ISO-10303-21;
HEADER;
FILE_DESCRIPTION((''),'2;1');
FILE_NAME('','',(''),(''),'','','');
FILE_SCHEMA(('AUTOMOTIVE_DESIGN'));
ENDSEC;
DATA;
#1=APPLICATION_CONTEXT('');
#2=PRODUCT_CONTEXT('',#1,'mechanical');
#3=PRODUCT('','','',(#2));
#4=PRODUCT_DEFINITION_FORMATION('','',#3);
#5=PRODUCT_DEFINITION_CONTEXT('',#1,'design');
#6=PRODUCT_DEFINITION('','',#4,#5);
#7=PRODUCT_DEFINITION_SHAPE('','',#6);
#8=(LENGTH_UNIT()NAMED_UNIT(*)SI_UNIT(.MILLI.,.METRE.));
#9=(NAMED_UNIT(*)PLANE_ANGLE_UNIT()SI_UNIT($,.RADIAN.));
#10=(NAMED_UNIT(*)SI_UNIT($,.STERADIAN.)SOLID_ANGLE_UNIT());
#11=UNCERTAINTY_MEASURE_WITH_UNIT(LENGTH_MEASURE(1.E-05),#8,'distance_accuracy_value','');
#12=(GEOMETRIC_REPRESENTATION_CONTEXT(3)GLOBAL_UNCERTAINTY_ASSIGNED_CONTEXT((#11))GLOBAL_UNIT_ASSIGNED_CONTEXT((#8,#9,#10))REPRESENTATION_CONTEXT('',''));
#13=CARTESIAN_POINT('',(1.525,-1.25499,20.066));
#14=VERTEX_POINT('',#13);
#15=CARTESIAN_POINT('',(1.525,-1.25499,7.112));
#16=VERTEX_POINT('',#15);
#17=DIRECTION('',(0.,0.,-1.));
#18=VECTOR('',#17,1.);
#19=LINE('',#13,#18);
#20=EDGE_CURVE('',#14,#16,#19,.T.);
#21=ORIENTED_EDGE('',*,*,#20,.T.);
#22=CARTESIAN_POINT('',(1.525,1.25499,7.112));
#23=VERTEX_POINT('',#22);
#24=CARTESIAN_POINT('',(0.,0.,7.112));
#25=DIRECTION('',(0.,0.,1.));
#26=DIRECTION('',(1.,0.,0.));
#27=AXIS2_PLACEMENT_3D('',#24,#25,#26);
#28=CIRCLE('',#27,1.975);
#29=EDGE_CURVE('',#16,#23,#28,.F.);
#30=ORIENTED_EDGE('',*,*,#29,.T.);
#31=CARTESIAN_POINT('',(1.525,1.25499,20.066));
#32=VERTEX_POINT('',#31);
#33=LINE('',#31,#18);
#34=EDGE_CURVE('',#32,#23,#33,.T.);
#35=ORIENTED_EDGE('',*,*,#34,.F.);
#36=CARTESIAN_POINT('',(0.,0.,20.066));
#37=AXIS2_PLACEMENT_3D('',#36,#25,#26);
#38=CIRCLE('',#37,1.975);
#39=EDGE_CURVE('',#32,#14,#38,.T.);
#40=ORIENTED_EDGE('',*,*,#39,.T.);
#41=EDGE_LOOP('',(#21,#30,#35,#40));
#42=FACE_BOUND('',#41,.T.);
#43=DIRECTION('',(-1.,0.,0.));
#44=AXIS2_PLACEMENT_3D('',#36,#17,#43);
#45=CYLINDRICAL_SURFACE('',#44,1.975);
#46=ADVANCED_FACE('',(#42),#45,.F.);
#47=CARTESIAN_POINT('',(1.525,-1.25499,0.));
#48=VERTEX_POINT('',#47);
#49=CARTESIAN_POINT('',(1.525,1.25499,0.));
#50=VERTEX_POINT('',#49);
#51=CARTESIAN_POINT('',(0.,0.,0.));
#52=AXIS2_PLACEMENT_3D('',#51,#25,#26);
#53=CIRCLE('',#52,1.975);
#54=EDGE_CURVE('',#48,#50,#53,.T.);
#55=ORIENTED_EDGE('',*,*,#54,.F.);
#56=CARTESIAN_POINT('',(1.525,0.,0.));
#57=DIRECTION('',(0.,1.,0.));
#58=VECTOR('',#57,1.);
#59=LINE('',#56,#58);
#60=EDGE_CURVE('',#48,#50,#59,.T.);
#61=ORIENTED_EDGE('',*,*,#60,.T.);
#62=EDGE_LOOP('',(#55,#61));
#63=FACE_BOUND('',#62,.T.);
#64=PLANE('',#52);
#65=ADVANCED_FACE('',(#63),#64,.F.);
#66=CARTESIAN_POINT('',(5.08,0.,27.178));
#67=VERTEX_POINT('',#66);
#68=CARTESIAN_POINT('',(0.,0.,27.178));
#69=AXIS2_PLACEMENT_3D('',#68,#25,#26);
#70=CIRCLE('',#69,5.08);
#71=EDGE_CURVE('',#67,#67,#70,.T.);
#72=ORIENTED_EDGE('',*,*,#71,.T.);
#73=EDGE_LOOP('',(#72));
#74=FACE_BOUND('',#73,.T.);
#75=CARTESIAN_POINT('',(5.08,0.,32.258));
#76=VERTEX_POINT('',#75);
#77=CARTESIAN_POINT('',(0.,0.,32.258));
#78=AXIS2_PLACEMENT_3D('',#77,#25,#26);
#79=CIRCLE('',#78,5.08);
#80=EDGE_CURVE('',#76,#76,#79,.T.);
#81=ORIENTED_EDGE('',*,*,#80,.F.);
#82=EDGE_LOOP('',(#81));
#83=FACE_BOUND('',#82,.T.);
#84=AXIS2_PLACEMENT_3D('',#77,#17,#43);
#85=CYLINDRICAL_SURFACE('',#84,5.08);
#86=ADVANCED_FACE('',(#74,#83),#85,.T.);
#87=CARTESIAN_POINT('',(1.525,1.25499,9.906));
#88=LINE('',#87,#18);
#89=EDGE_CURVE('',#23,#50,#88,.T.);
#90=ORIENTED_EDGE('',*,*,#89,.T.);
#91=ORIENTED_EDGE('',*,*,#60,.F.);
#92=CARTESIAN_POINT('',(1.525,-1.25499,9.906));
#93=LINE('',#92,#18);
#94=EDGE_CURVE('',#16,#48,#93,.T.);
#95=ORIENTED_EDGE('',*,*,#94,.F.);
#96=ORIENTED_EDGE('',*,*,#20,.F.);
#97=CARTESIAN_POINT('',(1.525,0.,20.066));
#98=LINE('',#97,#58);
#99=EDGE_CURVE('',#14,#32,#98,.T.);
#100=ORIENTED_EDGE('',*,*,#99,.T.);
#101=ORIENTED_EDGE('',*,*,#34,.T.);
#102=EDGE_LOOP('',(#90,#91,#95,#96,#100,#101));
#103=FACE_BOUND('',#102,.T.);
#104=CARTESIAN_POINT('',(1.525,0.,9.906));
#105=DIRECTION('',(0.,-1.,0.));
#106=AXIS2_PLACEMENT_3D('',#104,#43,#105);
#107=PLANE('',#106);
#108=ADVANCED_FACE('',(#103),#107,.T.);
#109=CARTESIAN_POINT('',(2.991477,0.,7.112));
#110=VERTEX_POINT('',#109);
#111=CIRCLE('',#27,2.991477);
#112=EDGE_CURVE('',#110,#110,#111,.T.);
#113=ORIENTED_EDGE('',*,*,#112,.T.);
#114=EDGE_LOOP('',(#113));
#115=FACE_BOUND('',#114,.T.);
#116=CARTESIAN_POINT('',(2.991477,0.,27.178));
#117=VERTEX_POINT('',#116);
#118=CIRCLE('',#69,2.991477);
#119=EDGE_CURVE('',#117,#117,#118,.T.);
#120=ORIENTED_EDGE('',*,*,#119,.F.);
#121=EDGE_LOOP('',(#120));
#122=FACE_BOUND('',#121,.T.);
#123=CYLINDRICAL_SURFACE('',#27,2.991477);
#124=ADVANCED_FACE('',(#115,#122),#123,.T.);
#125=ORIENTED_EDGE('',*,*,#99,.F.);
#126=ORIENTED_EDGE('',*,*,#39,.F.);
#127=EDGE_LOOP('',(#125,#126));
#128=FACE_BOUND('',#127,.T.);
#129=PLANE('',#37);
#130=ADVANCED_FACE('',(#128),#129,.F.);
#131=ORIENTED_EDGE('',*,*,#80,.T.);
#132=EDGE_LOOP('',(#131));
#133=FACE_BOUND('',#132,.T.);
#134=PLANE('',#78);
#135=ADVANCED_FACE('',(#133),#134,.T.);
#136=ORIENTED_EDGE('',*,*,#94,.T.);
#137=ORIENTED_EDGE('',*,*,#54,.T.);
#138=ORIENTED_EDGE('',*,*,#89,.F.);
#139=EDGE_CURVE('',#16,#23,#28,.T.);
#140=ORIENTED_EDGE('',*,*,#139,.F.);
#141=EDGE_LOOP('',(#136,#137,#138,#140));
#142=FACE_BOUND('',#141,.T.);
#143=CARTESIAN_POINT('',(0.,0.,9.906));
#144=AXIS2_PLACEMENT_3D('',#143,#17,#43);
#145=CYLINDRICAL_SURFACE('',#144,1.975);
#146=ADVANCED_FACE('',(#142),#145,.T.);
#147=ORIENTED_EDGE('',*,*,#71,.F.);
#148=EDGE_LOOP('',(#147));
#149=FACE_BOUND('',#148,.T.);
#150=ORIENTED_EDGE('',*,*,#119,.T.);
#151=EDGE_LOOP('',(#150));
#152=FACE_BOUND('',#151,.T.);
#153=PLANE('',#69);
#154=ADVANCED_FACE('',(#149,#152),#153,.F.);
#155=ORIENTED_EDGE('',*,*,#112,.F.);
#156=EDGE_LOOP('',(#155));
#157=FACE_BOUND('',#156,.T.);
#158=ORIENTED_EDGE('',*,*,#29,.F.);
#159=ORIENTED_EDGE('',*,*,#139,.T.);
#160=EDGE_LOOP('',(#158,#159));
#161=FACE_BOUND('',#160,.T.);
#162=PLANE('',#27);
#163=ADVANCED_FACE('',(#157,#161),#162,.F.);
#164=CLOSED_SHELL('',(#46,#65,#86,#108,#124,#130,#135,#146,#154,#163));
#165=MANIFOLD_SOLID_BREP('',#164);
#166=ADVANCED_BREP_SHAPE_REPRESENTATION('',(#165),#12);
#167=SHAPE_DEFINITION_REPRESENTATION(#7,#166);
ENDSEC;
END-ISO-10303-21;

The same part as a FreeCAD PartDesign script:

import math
import FreeCAD as App
import Part
import Sketcher

V = App.Vector
Q = App.Units.Quantity

doc = App.newDocument("Part")
params = doc.addObject("Spreadsheet::Sheet", "Params")
for row, (alias, value) in enumerate([
    ("pad1_length", "0.39 in"),
    ("pad2_length", "0.68 in"),
    ("pad3_length", "0.79 in"),
    ("pocket1_length", "0.79 in"),
    ("sketch5_diameter", "0.4 in"),
    ("pad4_length", "0.2 in"),
], start=1):
    params.set(f"A{row}", alias)
    params.set(f"B{row}", "=" + value)
    params.setAlias(f"B{row}", alias)

body = doc.addObject("PartDesign::Body", "Body")

# Sketch on XY plane
sketch1 = body.newObject("Sketcher::SketchObject", "Sketch")
sketch1.AttachmentSupport = (doc.getObject("XY_Plane"), [""])
sketch1.MapMode = "FlatFace"
sketch1.addGeometry([
    Part.ArcOfCircle(Part.Circle(V(0, 0, 0), V(0, 0, 1), 2), math.radians(-39), math.radians(39)),
    Part.LineSegment(V(1.5, 1.3, 0), V(1.5, -1.3, 0)),
], False)
sketch1.addConstraint([
    Sketcher.Constraint("Coincident", 0, 1, 1, 2),
    Sketcher.Constraint("Coincident", 1, 1, 0, 2),
    Sketcher.Constraint("Vertical", 1),
    Sketcher.Constraint("Coincident", 0, 3, -1, 1),
    Sketcher.Constraint("Radius", 0, Q("1.975 mm")),
    Sketcher.Constraint("DistanceY", 1, 2, 1, 1, Q("2.50998 mm")),
])
pad1 = body.newObject("PartDesign::Pad", "Pad")
pad1.Profile = sketch1
pad1.setExpression("Length", "Params.pad1_length")

# Sketch on XY plane
sketch2 = body.newObject("Sketcher::SketchObject", "Sketch001")
sketch2.AttachmentSupport = (doc.getObject("XY_Plane"), [""])
sketch2.MapMode = "FlatFace"
sketch2.AttachmentOffset = App.Placement(V(0, 0, 0.39 * 25.4), App.Rotation())
sketch2.addGeometry(Part.Circle(V(0, 0, 0), V(0, 0, 1), 2), False)
sketch2.addConstraint([
    Sketcher.Constraint("Coincident", 0, 3, -1, 1),
    Sketcher.Constraint("Diameter", 0, Q("3.95 mm")),
])
pad2 = body.newObject("PartDesign::Pad", "Pad001")
pad2.Profile = sketch2
pad2.setExpression("Length", "Params.pad2_length")

# Sketch on XY plane
sketch3 = body.newObject("Sketcher::SketchObject", "Sketch002")
sketch3.AttachmentSupport = (doc.getObject("XY_Plane"), [""])
sketch3.MapMode = "FlatFace"
sketch3.AttachmentOffset = App.Placement(V(0, 0, 1.07 * 25.4), App.Rotation())
sketch3.addGeometry(Part.Circle(V(0, 0, 0), V(0, 0, 1), 3), False)
sketch3.addConstraint([
    Sketcher.Constraint("Coincident", 0, 3, -1, 1),
    Sketcher.Constraint("Diameter", 0, Q("5.982955 mm")),
])
pad3 = body.newObject("PartDesign::Pad", "Pad002")
pad3.Profile = sketch3
pad3.setExpression("Length", "Params.pad3_length")
pad3.Reversed = True

# Sketch on XY plane
sketch4 = body.newObject("Sketcher::SketchObject", "Sketch003")
sketch4.AttachmentSupport = (doc.getObject("XY_Plane"), [""])
sketch4.MapMode = "FlatFace"
sketch4.addGeometry([
    Part.LineSegment(V(1.5, -1.3, 0), V(1.5, 1.3, 0)),
    Part.ArcOfCircle(Part.Circle(V(0, 0, 0), V(0, 0, 1), 2), math.radians(39), math.radians(321)),
], False)
sketch4.addConstraint([
    Sketcher.Constraint("Coincident", 0, 1, 1, 2),
    Sketcher.Constraint("Coincident", 1, 1, 0, 2),
    Sketcher.Constraint("Vertical", 0),
    Sketcher.Constraint("Coincident", 1, 3, -1, 1),
    Sketcher.Constraint("Radius", 1, Q("1.975 mm")),
    Sketcher.Constraint("DistanceY", 0, 1, 0, 2, Q("2.50998 mm")),
])
pocket1 = body.newObject("PartDesign::Pocket", "Pocket")
pocket1.Profile = sketch4
pocket1.setExpression("Length", "Params.pocket1_length")
pocket1.Reversed = True

# Sketch on XY plane
sketch5 = body.newObject("Sketcher::SketchObject", "Sketch004")
sketch5.AttachmentSupport = (doc.getObject("XY_Plane"), [""])
sketch5.MapMode = "FlatFace"
sketch5.AttachmentOffset = App.Placement(V(0, 0, 1.07 * 25.4), App.Rotation())
sketch5.addGeometry(Part.Circle(V(0, 0, 0), V(0, 0, 1), 5), False)
sketch5.addConstraint([
    Sketcher.Constraint("Coincident", 0, 3, -1, 1),
    Sketcher.Constraint("Diameter", 0, Q("0.4 in")),
])
sketch5.setExpression("Constraints[1]", "Params.sketch5_diameter")
pad4 = body.newObject("PartDesign::Pad", "Pad003")
pad4.Profile = sketch5
pad4.setExpression("Length", "Params.pad4_length")

doc.recompute()
